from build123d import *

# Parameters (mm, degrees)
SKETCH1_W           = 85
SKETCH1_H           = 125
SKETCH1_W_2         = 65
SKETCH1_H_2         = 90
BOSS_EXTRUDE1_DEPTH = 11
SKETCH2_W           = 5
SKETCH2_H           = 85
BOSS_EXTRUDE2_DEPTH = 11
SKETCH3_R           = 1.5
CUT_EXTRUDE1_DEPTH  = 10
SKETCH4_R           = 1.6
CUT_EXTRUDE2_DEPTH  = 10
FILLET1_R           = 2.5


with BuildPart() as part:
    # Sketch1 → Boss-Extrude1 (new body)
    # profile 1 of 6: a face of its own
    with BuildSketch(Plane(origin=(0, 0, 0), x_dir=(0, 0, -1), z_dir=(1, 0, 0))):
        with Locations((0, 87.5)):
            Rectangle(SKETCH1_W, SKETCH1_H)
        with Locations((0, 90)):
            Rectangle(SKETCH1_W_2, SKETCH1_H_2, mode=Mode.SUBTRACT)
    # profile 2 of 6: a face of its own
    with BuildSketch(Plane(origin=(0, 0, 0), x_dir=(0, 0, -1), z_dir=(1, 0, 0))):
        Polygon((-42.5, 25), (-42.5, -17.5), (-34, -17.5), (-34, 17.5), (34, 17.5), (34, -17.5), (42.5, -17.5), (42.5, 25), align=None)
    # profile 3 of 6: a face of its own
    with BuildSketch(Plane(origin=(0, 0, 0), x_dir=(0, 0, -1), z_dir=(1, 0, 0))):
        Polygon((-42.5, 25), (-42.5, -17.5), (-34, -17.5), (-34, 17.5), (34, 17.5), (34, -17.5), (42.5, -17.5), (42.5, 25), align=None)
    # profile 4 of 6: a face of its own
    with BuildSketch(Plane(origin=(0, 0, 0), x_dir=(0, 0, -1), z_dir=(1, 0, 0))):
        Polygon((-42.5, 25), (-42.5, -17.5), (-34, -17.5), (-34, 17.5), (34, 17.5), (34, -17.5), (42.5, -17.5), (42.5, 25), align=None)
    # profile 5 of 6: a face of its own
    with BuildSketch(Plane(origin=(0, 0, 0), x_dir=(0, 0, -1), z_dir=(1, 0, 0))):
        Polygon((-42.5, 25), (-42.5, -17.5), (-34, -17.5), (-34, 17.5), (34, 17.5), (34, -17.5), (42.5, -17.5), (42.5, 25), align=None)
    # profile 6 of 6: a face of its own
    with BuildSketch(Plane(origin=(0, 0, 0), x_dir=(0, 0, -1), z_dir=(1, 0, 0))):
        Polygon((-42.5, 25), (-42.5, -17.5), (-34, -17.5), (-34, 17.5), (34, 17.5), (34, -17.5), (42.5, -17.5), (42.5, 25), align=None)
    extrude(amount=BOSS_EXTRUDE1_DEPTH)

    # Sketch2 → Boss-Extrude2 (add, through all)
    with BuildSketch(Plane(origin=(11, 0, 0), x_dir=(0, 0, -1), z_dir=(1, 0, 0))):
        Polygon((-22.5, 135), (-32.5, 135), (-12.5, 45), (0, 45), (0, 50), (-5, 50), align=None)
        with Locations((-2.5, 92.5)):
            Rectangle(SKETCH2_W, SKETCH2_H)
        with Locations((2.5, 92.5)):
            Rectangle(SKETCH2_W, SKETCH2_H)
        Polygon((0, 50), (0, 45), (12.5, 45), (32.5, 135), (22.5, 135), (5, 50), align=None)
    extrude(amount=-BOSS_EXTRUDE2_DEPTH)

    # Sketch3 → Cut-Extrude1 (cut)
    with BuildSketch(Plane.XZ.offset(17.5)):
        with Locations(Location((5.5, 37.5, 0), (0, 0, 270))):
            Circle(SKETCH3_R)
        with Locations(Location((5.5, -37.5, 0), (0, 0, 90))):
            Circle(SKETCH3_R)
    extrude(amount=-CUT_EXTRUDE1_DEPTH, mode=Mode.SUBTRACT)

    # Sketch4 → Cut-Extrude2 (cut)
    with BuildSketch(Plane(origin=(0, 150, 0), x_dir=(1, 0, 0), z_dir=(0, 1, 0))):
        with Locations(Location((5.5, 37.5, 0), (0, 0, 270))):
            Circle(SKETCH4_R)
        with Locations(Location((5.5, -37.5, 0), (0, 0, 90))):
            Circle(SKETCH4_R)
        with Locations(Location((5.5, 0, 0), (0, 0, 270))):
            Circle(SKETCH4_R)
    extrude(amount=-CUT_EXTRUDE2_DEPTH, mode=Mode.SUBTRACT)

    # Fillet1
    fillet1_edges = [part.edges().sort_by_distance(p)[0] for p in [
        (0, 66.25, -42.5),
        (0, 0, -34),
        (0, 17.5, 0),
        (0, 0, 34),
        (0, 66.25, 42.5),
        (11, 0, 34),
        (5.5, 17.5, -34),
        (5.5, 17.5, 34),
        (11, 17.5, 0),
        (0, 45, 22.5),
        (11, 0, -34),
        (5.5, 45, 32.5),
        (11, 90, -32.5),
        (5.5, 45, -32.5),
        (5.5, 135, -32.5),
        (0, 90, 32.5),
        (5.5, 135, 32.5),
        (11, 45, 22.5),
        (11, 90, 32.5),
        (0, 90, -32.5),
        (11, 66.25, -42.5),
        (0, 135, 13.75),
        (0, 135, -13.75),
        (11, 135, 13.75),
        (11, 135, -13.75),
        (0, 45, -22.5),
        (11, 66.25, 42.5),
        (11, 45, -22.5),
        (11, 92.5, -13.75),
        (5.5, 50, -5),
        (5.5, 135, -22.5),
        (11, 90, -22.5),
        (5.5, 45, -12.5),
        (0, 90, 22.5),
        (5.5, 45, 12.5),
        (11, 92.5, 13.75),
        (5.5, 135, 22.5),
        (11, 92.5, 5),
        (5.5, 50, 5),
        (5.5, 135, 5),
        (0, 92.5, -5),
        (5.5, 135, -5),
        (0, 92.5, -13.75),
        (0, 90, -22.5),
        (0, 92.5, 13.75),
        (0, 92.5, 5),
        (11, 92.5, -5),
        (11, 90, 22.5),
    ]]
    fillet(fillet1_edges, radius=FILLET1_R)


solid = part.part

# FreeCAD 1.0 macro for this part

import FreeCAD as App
import Part
import Sketcher


def edges_at(feature, points):
    """Names of the edges that pass closest to the given points."""
    edges = feature.Shape.Edges
    near = lambda p: min(range(len(edges)), key=lambda i: edges[i].distToShape(Part.Vertex(*p))[0])
    return sorted({f"Edge{near(p) + 1}" for p in points})

doc = App.newDocument("Part")
body = doc.addObject("PartDesign::Body", "Body")

# Sketch on YZ plane
sketch1 = body.newObject("Sketcher::SketchObject", "Sketch")
sketch1.AttachmentSupport = (doc.getObject("YZ_Plane"), [""])
sketch1.MapMode = "FlatFace"
sketch1.addGeometry(Part.LineSegment(App.Vector(150, 42, 0), App.Vector(-18, 42, 0)), False)
sketch1.addGeometry(Part.LineSegment(App.Vector(-18, 42, 0), App.Vector(-18, 34, 0)), False)
sketch1.addGeometry(Part.LineSegment(App.Vector(-18, 34, 0), App.Vector(18, 34, 0)), False)
sketch1.addGeometry(Part.LineSegment(App.Vector(18, 34, 0), App.Vector(18, -34, 0)), False)
sketch1.addGeometry(Part.LineSegment(App.Vector(18, -34, 0), App.Vector(-18, -34, 0)), False)
sketch1.addGeometry(Part.LineSegment(App.Vector(-18, -34, 0), App.Vector(-18, -42, 0)), False)
sketch1.addGeometry(Part.LineSegment(App.Vector(-18, -42, 0), App.Vector(150, -42, 0)), False)
sketch1.addGeometry(Part.LineSegment(App.Vector(150, -42, 0), App.Vector(150, 42, 0)), False)
sketch1.addGeometry(Part.LineSegment(App.Vector(45, -32, 0), App.Vector(45, 32, 0)), False)
sketch1.addGeometry(Part.LineSegment(App.Vector(45, 32, 0), App.Vector(135, 32, 0)), False)
sketch1.addGeometry(Part.LineSegment(App.Vector(135, 32, 0), App.Vector(135, -32, 0)), False)
sketch1.addGeometry(Part.LineSegment(App.Vector(135, -32, 0), App.Vector(45, -32, 0)), False)
sketch1.addConstraint(Sketcher.Constraint("Coincident", 0, 2, 1, 1))
sketch1.addConstraint(Sketcher.Constraint("Coincident", 1, 2, 2, 1))
sketch1.addConstraint(Sketcher.Constraint("Coincident", 2, 2, 3, 1))
sketch1.addConstraint(Sketcher.Constraint("Coincident", 3, 2, 4, 1))
sketch1.addConstraint(Sketcher.Constraint("Coincident", 4, 2, 5, 1))
sketch1.addConstraint(Sketcher.Constraint("Coincident", 5, 2, 6, 1))
sketch1.addConstraint(Sketcher.Constraint("Coincident", 6, 2, 7, 1))
sketch1.addConstraint(Sketcher.Constraint("Coincident", 7, 2, 0, 1))
sketch1.addConstraint(Sketcher.Constraint("Coincident", 8, 2, 9, 1))
sketch1.addConstraint(Sketcher.Constraint("Coincident", 9, 2, 10, 1))
sketch1.addConstraint(Sketcher.Constraint("Coincident", 10, 2, 11, 1))
sketch1.addConstraint(Sketcher.Constraint("Coincident", 11, 2, 8, 1))
sketch1.addConstraint(Sketcher.Constraint("Horizontal", 0))
sketch1.addConstraint(Sketcher.Constraint("Vertical", 1))
sketch1.addConstraint(Sketcher.Constraint("Horizontal", 2))
sketch1.addConstraint(Sketcher.Constraint("Vertical", 3))
sketch1.addConstraint(Sketcher.Constraint("Horizontal", 4))
sketch1.addConstraint(Sketcher.Constraint("Vertical", 5))
sketch1.addConstraint(Sketcher.Constraint("Horizontal", 6))
sketch1.addConstraint(Sketcher.Constraint("Vertical", 7))
sketch1.addConstraint(Sketcher.Constraint("Vertical", 8))
sketch1.addConstraint(Sketcher.Constraint("Horizontal", 9))
sketch1.addConstraint(Sketcher.Constraint("Vertical", 10))
sketch1.addConstraint(Sketcher.Constraint("Horizontal", 11))
sketch1.addConstraint(Sketcher.Constraint("Symmetric", 1, 2, 3, 2, -1, 1))
sketch1.addConstraint(Sketcher.Constraint("Symmetric", 0, 2, 5, 2, -1))
sketch1.addConstraint(Sketcher.Constraint("DistanceX", 2, 1, 2, 2, 35.0))
sketch1.addConstraint(Sketcher.Constraint("DistanceX", 9, 1, 9, 2, 90.0))
sketch1.addConstraint(Sketcher.Constraint("DistanceY", 3, 2, 3, 1, 68.0))
sketch1.addConstraint(Sketcher.Constraint("DistanceY", 7, 1, 7, 2, 85.0))
sketch1.addConstraint(Sketcher.Constraint("DistanceY", 8, 1, 8, 2, 65.0))
sketch1.addConstraint(Sketcher.Constraint("DistanceX", 0, 2, 0, 1, 167.5))
sketch1.addConstraint(Sketcher.Constraint("DistanceX", -1, 1, 8, 2, 45.0))
sketch1.addConstraint(Sketcher.Constraint("DistanceY", 8, 2, 0, 2, 10.0))
pad1 = body.newObject("PartDesign::Pad", "Pad")
pad1.Profile = sketch1
pad1.Length = 11

# Sketch on YZ plane
sketch2 = body.newObject("Sketcher::SketchObject", "Sketch001")
sketch2.AttachmentSupport = (doc.getObject("YZ_Plane"), [""])
sketch2.MapMode = "FlatFace"
sketch2.AttachmentOffset = App.Placement(App.Vector(0, 0, 11), App.Rotation())
sketch2.addGeometry(Part.LineSegment(App.Vector(135, 22, 0), App.Vector(135, 32, 0)), False)
sketch2.addGeometry(Part.LineSegment(App.Vector(135, 32, 0), App.Vector(45, 12, 0)), False)
sketch2.addGeometry(Part.LineSegment(App.Vector(45, 12, 0), App.Vector(45, -12, 0)), False)
sketch2.addGeometry(Part.LineSegment(App.Vector(45, -12, 0), App.Vector(135, -32, 0)), False)
sketch2.addGeometry(Part.LineSegment(App.Vector(135, -32, 0), App.Vector(135, -22, 0)), False)
sketch2.addGeometry(Part.LineSegment(App.Vector(135, -22, 0), App.Vector(50, -5, 0)), False)
sketch2.addGeometry(Part.LineSegment(App.Vector(50, -5, 0), App.Vector(135, -5, 0)), False)
sketch2.addGeometry(Part.LineSegment(App.Vector(135, -5, 0), App.Vector(135, 5, 0)), False)
sketch2.addGeometry(Part.LineSegment(App.Vector(135, 5, 0), App.Vector(50, 5, 0)), False)
sketch2.addGeometry(Part.LineSegment(App.Vector(50, 5, 0), App.Vector(135, 22, 0)), False)
sketch2.addConstraint(Sketcher.Constraint("Coincident", 0, 2, 1, 1))
sketch2.addConstraint(Sketcher.Constraint("Coincident", 1, 2, 2, 1))
sketch2.addConstraint(Sketcher.Constraint("Coincident", 2, 2, 3, 1))
sketch2.addConstraint(Sketcher.Constraint("Coincident", 3, 2, 4, 1))
sketch2.addConstraint(Sketcher.Constraint("Coincident", 4, 2, 5, 1))
sketch2.addConstraint(Sketcher.Constraint("Coincident", 5, 2, 6, 1))
sketch2.addConstraint(Sketcher.Constraint("Coincident", 6, 2, 7, 1))
sketch2.addConstraint(Sketcher.Constraint("Coincident", 7, 2, 8, 1))
sketch2.addConstraint(Sketcher.Constraint("Coincident", 8, 2, 9, 1))
sketch2.addConstraint(Sketcher.Constraint("Coincident", 9, 2, 0, 1))
sketch2.addConstraint(Sketcher.Constraint("Vertical", 0))
sketch2.addConstraint(Sketcher.Constraint("Vertical", 2))
sketch2.addConstraint(Sketcher.Constraint("Vertical", 4))
sketch2.addConstraint(Sketcher.Constraint("Horizontal", 6))
sketch2.addConstraint(Sketcher.Constraint("Vertical", 7))
sketch2.addConstraint(Sketcher.Constraint("Horizontal", 8))
sketch2.addConstraint(Sketcher.Constraint("Symmetric", 0, 2, 3, 2, -1))
sketch2.addConstraint(Sketcher.Constraint("Symmetric", 5, 2, 8, 2, -1))
sketch2.addConstraint(Sketcher.Constraint("Vertical", 4, 2, 6, 2))
sketch2.addConstraint(Sketcher.Constraint("Equal", 0, 4))
sketch2.addConstraint(Sketcher.Constraint("Equal", 4, 7))
sketch2.addConstraint(Sketcher.Constraint("Equal", 1, 3))
sketch2.addConstraint(Sketcher.Constraint("DistanceX", 6, 1, 6, 2, 85.0))
sketch2.addConstraint(Sketcher.Constraint("DistanceY", 0, 1, 0, 2, 10.0))
sketch2.addConstraint(Sketcher.Constraint("DistanceY", 2, 2, 2, 1, 25.0))
sketch2.addConstraint(Sketcher.Constraint("DistanceX", -1, 1, 0, 2, 135.0))
sketch2.addConstraint(Sketcher.Constraint("DistanceX", -1, 1, 1, 2, 45.0))
sketch2.addConstraint(Sketcher.Constraint("DistanceY", 1, 2, 0, 2, 20.0))
pad2 = body.newObject("PartDesign::Pad", "Pad001")
pad2.Profile = sketch2
pad2.Length = 11
pad2.Reversed = True

# Sketch on XZ plane
sketch3 = body.newObject("Sketcher::SketchObject", "Sketch002")
sketch3.AttachmentSupport = (doc.getObject("XZ_Plane"), [""])
sketch3.MapMode = "FlatFace"
sketch3.AttachmentOffset = App.Placement(App.Vector(0, 0, 17.5), App.Rotation())
sketch3.addGeometry(Part.Circle(App.Vector(5.5, 37.5, 0), App.Vector(0, 0, 1), 1.5), False)
sketch3.addGeometry(Part.Circle(App.Vector(5.5, -37.5, 0), App.Vector(0, 0, 1), 1.5), False)
sketch3.addConstraint(Sketcher.Constraint("Equal", 0, 1))
sketch3.addConstraint(Sketcher.Constraint("Symmetric", 0, 3, 1, 3, -1))
sketch3.addConstraint(Sketcher.Constraint("Diameter", 0, 3.0))
sketch3.addConstraint(Sketcher.Constraint("DistanceY", 1, 3, 0, 3, 75.0))
sketch3.addConstraint(Sketcher.Constraint("DistanceX", -1, 1, 0, 3, 5.5))
pocket1 = body.newObject("PartDesign::Pocket", "Pocket")
pocket1.Profile = sketch3
pocket1.Length = 10

# Sketch on XZ plane
sketch4 = body.newObject("Sketcher::SketchObject", "Sketch003")
sketch4.AttachmentSupport = (doc.getObject("XZ_Plane"), [""])
sketch4.MapMode = "FlatFace"
sketch4.AttachmentOffset = App.Placement(App.Vector(0, 0, -150), App.Rotation())
sketch4.addGeometry(Part.Circle(App.Vector(5.5, -37.5, 0), App.Vector(0, 0, 1), 1.6), False)
sketch4.addGeometry(Part.Circle(App.Vector(5.5, 37.5, 0), App.Vector(0, 0, 1), 1.6), False)
sketch4.addGeometry(Part.Circle(App.Vector(5.5, 0, 0), App.Vector(0, 0, 1), 1.6), False)
sketch4.addConstraint(Sketcher.Constraint("Equal", 0, 1))
sketch4.addConstraint(Sketcher.Constraint("Equal", 1, 2))
sketch4.addConstraint(Sketcher.Constraint("Symmetric", 0, 3, 1, 3, -1))
sketch4.addConstraint(Sketcher.Constraint("PointOnObject", 2, 3, -1))
sketch4.addConstraint(Sketcher.Constraint("Vertical", 1, 3, 2, 3))
sketch4.addConstraint(Sketcher.Constraint("Diameter", 0, 3.2))
sketch4.addConstraint(Sketcher.Constraint("DistanceY", 0, 3, 1, 3, 75.0))
sketch4.addConstraint(Sketcher.Constraint("DistanceX", -1, 1, 0, 3, 5.5))
pocket2 = body.newObject("PartDesign::Pocket", "Pocket001")
pocket2.Profile = sketch4
pocket2.Length = 10
pocket2.Reversed = True
doc.recompute()

fillet = body.newObject("PartDesign::Fillet", "Fillet")
fillet.Base = (pocket2, edges_at(pocket2, [
    (0, 66.25, -42.5),
    (0, 0, -34),
    (0, 17.5, 0),
    (0, 0, 34),
    (0, 66.25, 42.5),
    (11, 0, 34),
    (5.5, 17.5, -34),
    (5.5, 17.5, 34),
    (11, 17.5, 0),
    (0, 45, 22.5),
    (11, 0, -34),
    (5.5, 45, 32.5),
    (11, 90, -32.5),
    (5.5, 45, -32.5),
    (5.5, 135, -32.5),
    (0, 90, 32.5),
    (5.5, 135, 32.5),
    (11, 45, 22.5),
    (11, 90, 32.5),
    (0, 90, -32.5),
    (11, 66.25, -42.5),
    (0, 135, 13.75),
    (0, 135, -13.75),
    (11, 135, 13.75),
    (11, 135, -13.75),
    (0, 45, -22.5),
    (11, 66.25, 42.5),
    (11, 45, -22.5),
    (11, 92.5, -13.75),
    (5.5, 50, -5),
    (5.5, 135, -22.5),
    (11, 90, -22.5),
    (5.5, 45, -12.5),
    (0, 90, 22.5),
    (5.5, 45, 12.5),
    (11, 92.5, 13.75),
    (5.5, 135, 22.5),
    (11, 92.5, 5),
    (5.5, 50, 5),
    (5.5, 135, 5),
    (0, 92.5, -5),
    (5.5, 135, -5),
    (0, 92.5, -13.75),
    (0, 90, -22.5),
    (0, 92.5, 13.75),
    (0, 92.5, 5),
    (11, 92.5, -5),
    (11, 90, 22.5),
]))
fillet.Radius = 2.5

doc.recompute()
